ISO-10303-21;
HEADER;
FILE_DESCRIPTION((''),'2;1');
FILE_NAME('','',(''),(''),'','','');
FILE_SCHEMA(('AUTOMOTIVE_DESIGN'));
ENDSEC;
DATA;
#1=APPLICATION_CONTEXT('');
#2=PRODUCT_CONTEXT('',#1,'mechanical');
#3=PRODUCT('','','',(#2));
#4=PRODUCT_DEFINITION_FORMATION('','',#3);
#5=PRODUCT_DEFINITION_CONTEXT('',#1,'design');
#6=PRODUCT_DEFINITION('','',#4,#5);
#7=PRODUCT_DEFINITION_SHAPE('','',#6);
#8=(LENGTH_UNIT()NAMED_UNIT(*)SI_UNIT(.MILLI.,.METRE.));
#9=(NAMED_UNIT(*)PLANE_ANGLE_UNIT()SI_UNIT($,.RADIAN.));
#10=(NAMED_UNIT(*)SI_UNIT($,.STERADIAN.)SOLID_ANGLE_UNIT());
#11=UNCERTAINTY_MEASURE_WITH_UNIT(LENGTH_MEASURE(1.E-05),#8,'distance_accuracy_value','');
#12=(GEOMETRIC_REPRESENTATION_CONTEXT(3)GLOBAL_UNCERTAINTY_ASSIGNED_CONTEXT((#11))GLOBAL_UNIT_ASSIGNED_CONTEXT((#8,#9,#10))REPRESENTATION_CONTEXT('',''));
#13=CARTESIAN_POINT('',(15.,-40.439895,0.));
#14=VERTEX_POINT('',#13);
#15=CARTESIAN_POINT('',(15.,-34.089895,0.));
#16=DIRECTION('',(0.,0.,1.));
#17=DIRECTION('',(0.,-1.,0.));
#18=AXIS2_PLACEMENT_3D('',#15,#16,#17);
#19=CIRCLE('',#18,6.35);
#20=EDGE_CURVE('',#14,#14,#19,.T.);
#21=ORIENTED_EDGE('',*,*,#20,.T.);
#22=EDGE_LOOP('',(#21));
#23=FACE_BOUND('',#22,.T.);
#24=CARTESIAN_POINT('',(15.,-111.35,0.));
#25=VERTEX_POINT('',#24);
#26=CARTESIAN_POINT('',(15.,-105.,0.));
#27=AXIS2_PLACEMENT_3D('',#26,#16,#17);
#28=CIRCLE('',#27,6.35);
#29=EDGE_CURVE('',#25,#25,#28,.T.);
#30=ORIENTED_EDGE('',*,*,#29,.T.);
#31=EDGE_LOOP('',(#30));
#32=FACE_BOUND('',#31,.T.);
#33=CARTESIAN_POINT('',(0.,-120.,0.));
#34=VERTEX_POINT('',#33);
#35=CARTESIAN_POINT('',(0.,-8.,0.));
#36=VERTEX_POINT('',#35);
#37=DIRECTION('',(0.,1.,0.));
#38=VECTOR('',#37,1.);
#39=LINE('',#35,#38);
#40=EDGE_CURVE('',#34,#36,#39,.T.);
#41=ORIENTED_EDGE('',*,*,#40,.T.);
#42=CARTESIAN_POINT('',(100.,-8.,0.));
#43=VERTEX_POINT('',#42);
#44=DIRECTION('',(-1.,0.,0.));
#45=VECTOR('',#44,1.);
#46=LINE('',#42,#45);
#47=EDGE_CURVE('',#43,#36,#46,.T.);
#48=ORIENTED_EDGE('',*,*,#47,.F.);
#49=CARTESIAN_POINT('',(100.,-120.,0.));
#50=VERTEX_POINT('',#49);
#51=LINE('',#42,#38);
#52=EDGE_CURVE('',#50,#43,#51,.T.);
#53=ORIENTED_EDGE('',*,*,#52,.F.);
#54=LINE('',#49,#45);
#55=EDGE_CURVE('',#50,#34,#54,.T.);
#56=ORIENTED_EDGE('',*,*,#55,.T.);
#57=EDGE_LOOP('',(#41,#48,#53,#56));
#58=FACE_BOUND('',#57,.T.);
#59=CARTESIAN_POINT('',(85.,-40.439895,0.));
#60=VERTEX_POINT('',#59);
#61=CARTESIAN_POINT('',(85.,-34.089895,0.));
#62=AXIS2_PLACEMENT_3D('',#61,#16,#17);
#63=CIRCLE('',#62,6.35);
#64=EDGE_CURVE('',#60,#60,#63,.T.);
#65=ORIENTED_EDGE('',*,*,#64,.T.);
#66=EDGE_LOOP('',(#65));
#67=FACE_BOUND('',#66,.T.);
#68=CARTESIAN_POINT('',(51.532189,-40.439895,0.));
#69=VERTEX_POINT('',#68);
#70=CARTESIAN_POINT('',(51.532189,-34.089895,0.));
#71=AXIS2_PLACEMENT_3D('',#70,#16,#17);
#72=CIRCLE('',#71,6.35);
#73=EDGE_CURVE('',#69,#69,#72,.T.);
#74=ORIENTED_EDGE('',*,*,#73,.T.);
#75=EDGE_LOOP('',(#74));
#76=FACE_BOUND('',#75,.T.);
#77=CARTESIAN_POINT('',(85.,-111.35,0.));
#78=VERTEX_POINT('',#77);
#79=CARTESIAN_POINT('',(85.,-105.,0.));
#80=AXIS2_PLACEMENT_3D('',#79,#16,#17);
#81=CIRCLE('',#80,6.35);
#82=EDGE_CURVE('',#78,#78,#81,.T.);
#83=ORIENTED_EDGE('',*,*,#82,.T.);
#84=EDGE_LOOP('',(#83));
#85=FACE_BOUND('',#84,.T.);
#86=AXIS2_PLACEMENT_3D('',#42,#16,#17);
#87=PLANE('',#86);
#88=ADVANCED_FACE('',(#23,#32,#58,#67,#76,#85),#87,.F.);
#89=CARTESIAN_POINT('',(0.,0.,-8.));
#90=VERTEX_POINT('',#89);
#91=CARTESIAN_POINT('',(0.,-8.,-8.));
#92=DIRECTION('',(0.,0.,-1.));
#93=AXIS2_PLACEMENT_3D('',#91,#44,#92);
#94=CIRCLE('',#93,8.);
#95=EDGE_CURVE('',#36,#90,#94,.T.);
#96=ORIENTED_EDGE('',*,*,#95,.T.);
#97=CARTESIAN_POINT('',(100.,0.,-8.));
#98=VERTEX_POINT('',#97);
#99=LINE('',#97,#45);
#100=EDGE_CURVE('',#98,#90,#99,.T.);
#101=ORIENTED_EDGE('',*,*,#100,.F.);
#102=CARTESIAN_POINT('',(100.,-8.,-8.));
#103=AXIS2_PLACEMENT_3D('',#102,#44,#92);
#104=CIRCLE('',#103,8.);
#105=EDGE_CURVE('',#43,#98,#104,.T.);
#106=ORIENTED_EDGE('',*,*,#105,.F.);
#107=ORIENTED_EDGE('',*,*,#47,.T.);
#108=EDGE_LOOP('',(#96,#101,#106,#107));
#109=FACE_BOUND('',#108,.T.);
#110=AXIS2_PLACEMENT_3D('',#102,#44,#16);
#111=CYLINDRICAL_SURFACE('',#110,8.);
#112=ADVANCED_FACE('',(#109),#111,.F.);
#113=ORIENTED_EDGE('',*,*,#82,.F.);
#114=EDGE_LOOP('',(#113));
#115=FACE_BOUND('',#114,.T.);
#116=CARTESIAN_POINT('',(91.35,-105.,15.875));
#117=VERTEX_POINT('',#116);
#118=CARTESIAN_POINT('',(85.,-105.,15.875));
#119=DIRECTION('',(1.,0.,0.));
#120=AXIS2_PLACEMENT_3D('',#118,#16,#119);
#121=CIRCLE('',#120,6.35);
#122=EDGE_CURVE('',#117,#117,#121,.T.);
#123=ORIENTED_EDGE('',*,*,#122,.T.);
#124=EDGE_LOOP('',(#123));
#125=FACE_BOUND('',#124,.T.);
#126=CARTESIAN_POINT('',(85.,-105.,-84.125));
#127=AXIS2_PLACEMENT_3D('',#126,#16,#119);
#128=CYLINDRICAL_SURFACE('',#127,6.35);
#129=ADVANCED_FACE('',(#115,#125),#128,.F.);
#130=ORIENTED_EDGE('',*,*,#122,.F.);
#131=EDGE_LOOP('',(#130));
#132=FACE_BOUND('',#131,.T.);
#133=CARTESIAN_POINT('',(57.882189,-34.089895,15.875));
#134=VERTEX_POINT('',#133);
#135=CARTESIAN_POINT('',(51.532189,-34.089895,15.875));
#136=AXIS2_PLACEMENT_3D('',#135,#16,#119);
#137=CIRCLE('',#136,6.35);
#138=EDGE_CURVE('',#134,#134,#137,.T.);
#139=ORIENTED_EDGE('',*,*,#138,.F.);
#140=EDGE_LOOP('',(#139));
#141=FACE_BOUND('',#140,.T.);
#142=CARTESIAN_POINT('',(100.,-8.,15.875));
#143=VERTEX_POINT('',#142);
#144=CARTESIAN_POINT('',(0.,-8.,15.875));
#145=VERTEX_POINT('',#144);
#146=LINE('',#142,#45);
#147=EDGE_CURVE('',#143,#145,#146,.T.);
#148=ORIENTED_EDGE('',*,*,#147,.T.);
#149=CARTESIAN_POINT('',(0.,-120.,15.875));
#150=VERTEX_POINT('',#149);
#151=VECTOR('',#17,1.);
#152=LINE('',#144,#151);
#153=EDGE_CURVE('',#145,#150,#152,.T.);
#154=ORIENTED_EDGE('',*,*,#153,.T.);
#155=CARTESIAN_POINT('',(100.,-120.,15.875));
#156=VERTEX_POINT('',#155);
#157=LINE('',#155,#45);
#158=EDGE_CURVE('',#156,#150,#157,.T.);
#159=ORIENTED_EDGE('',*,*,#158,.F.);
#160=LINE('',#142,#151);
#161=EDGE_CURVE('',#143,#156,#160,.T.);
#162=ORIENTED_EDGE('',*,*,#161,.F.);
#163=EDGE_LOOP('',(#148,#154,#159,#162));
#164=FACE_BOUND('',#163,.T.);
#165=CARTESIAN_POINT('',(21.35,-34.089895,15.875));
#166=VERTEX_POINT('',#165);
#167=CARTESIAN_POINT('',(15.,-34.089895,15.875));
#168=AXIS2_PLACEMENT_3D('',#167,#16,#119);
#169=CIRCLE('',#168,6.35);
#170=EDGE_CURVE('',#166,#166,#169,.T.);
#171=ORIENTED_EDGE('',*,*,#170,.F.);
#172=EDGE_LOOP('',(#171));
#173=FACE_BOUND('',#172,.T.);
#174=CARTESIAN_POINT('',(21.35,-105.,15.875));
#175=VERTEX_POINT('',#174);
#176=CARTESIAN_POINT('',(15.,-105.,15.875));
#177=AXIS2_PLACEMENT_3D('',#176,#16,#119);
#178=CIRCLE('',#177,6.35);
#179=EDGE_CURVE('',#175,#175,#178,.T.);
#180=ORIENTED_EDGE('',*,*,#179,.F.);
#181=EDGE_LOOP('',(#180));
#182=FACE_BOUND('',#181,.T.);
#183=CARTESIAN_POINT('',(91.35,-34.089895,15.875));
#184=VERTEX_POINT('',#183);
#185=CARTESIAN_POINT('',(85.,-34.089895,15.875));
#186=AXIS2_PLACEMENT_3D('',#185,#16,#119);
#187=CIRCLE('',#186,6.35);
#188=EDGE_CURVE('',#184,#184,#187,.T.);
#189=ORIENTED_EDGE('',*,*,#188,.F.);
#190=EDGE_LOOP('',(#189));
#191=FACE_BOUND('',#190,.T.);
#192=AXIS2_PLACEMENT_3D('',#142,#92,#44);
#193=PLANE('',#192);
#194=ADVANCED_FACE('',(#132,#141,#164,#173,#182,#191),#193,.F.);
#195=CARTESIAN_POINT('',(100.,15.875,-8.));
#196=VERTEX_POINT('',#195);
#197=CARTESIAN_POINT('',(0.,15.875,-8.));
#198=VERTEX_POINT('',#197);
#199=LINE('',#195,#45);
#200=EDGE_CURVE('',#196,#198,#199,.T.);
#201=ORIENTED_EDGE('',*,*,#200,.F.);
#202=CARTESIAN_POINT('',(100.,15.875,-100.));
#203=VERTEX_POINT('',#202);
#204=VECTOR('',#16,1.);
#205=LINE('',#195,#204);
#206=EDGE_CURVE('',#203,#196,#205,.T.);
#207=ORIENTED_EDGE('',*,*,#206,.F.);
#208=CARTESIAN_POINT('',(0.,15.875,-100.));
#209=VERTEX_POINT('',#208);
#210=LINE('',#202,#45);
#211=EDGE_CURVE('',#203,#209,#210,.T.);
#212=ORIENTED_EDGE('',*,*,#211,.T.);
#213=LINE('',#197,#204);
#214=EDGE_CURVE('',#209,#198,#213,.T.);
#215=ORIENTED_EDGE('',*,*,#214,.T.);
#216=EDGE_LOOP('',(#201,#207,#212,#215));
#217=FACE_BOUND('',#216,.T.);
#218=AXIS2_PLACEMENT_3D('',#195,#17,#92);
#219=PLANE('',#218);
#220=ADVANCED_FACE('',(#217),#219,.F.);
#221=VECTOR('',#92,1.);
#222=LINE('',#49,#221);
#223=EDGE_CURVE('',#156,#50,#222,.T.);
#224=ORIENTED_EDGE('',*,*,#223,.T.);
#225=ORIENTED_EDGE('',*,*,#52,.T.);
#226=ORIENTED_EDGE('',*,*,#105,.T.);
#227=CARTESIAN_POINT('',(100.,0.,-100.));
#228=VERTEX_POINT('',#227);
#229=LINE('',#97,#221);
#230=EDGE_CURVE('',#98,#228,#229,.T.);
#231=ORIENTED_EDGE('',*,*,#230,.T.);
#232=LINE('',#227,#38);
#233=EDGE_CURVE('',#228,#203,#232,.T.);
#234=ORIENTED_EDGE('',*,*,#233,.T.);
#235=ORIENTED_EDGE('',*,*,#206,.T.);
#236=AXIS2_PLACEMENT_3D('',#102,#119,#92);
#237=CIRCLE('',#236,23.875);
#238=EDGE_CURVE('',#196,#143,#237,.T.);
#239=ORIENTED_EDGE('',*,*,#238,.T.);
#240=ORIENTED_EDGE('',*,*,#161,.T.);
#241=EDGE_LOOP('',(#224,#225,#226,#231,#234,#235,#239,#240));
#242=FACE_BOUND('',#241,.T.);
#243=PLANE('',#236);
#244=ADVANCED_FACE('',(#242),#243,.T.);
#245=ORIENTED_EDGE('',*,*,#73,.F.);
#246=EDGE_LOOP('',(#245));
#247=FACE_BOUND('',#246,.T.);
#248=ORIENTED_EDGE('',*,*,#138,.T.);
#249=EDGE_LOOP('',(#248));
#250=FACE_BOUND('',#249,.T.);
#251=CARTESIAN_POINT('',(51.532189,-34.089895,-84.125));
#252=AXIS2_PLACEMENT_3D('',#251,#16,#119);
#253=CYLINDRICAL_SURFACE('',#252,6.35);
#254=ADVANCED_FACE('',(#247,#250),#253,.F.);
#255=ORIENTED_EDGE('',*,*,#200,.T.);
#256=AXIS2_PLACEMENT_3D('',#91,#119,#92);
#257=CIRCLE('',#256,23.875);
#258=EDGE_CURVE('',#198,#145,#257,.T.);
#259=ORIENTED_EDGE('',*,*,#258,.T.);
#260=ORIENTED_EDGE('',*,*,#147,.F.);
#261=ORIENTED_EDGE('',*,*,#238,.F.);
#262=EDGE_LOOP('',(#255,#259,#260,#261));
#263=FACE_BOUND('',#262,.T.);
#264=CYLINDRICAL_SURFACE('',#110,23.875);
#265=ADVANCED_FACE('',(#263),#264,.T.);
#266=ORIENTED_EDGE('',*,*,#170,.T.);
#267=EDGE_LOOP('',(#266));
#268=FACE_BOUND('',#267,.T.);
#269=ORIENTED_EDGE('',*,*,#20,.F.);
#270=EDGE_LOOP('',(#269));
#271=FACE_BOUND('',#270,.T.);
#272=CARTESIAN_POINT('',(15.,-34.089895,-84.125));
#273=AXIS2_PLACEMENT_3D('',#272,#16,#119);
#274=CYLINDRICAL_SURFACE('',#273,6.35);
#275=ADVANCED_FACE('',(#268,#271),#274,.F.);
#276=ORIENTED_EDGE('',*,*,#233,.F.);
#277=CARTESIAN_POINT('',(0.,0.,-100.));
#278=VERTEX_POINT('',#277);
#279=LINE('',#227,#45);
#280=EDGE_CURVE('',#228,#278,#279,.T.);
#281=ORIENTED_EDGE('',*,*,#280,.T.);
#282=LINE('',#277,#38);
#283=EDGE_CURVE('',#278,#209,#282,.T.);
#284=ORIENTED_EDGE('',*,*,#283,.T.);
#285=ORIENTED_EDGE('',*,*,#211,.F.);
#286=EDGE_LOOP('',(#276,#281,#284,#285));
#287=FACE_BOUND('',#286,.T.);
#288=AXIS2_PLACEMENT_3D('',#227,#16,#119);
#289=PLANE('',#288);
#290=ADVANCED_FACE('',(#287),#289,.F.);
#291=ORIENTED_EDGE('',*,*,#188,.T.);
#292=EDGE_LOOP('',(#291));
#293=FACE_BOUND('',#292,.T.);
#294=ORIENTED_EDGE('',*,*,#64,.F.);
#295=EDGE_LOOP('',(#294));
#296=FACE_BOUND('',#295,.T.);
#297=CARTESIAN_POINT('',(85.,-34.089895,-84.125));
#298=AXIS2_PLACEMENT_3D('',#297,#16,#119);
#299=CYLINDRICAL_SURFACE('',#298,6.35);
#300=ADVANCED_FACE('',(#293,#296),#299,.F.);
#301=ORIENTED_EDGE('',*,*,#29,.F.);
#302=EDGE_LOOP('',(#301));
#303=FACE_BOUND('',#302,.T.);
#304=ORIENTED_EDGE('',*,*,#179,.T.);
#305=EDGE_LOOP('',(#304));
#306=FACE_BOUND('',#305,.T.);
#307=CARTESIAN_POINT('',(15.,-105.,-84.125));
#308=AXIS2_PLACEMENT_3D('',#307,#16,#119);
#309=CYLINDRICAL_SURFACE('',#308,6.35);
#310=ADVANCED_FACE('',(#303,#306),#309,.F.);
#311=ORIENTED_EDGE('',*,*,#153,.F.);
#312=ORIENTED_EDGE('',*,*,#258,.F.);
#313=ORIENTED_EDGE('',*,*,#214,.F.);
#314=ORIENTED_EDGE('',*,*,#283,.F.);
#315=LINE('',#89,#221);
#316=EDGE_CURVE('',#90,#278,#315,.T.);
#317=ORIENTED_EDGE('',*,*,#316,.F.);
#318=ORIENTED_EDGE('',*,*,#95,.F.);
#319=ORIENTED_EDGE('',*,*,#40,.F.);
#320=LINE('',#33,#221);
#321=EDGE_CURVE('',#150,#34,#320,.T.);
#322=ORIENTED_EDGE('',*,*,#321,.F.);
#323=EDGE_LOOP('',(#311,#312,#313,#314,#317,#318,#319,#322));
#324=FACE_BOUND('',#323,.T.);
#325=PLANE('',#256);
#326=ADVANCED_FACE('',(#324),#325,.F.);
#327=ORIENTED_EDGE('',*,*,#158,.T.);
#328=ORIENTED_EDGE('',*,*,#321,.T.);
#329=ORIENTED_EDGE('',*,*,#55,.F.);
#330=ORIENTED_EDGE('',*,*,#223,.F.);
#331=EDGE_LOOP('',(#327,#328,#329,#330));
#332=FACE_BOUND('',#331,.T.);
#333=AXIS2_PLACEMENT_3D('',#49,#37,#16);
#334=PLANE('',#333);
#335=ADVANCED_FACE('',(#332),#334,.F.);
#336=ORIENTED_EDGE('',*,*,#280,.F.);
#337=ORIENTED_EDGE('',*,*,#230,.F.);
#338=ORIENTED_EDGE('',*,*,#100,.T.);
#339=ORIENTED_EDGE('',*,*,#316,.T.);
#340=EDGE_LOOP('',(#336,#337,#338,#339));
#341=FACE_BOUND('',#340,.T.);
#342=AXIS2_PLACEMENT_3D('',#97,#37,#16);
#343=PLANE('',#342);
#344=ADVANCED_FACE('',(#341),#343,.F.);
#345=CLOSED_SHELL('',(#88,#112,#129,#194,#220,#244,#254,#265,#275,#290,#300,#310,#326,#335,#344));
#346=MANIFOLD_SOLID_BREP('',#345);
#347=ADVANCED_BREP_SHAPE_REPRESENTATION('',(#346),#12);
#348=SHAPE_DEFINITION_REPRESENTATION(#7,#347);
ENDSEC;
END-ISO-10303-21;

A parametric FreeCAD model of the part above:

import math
import FreeCAD as App
import Part
import Sketcher

V = App.Vector
Q = App.Units.Quantity

doc = App.newDocument("Part")
body = doc.addObject("PartDesign::Body", "Body")

# Sketch on YZ plane
sketch1 = body.newObject("Sketcher::SketchObject", "Sketch")
sketch1.AttachmentSupport = (doc.getObject("YZ_Plane"), [""])
sketch1.MapMode = "FlatFace"
sketch1.addGeometry([
    Part.LineSegment(V(0, -8, 0), V(0, -100, 0)),  # 0
    Part.LineSegment(V(0, -100, 0), V(16, -100, 0)),  # 1
    Part.LineSegment(V(16, -100, 0), V(16, -8, 0)),  # 2
    Part.ArcOfCircle(Part.Circle(V(-8, -8, 0), V(0, 0, 1), 24), math.radians(0), math.radians(90)),  # 3
    Part.LineSegment(V(-8, 16, 0), V(-120, 16, 0)),  # 4
    Part.LineSegment(V(-120, 16, 0), V(-120, 0, 0)),  # 5
    Part.LineSegment(V(-120, 0, 0), V(-8, 0, 0)),  # 6
    Part.ArcOfCircle(Part.Circle(V(-8, -8, 0), V(0, 0, 1), 8), math.radians(0), math.radians(90)),  # 7
], False)
sketch1.addConstraint([
    Sketcher.Constraint("Coincident", 0, 2, 1, 1),
    Sketcher.Constraint("Coincident", 1, 2, 2, 1),
    Sketcher.Constraint("Tangent", 2, 2, 3, 1),
    Sketcher.Constraint("Tangent", 3, 2, 4, 1),
    Sketcher.Constraint("Coincident", 4, 2, 5, 1),
    Sketcher.Constraint("Coincident", 5, 2, 6, 1),
    Sketcher.Constraint("Tangent", 6, 2, 7, 2),
    Sketcher.Constraint("Tangent", 7, 1, 0, 1),
    Sketcher.Constraint("Vertical", 0),
    Sketcher.Constraint("Horizontal", 1),
    Sketcher.Constraint("Vertical", 2),
    Sketcher.Constraint("Horizontal", 4),
    Sketcher.Constraint("Vertical", 5),
    Sketcher.Constraint("Horizontal", 6),
    Sketcher.Constraint("Coincident", 7, 3, 3, 3),
    Sketcher.Constraint("PointOnObject", 0, 2, -2),
    Sketcher.Constraint("PointOnObject", 5, 2, -1),
    Sketcher.Constraint("Radius", 7, Q("8 mm")),
    Sketcher.Constraint("DistanceX", 4, 2, 4, 1, Q("112 mm")),
    Sketcher.Constraint("DistanceY", 0, 2, 0, 1, Q("92 mm")),
    Sketcher.Constraint("Radius", 3, Q("23.875 mm")),
])
pad1 = body.newObject("PartDesign::Pad", "Pad")
pad1.Profile = sketch1
pad1.Length = 100

# Sketch on XY plane
sketch2 = body.newObject("Sketcher::SketchObject", "Sketch001")
sketch2.AttachmentSupport = (doc.getObject("XY_Plane"), [""])
sketch2.MapMode = "FlatFace"
sketch2.AttachmentOffset = App.Placement(V(0, 0, 15.875), App.Rotation())
sketch2.addGeometry([
    Part.Circle(V(15, -34, 0), V(0, 0, 1), 6),  # 0
    Part.Circle(V(85, -34, 0), V(0, 0, 1), 6),  # 1
    Part.Circle(V(15, -105, 0), V(0, 0, 1), 6),  # 2
    Part.Circle(V(85, -105, 0), V(0, 0, 1), 6),  # 3
    Part.Circle(V(52, -34, 0), V(0, 0, 1), 6),  # 4
], False)
sketch2.addConstraint([
    Sketcher.Constraint("Equal", 0, 1),
    Sketcher.Constraint("Equal", 1, 2),
    Sketcher.Constraint("Equal", 2, 3),
    Sketcher.Constraint("Equal", 3, 4),
    Sketcher.Constraint("Horizontal", 0, 3, 1, 3),
    Sketcher.Constraint("Horizontal", 2, 3, 3, 3),
    Sketcher.Constraint("Horizontal", 1, 3, 4, 3),
    Sketcher.Constraint("Vertical", 0, 3, 2, 3),
    Sketcher.Constraint("Vertical", 1, 3, 3, 3),
    Sketcher.Constraint("Diameter", 0, Q("12.7 mm")),
    Sketcher.Constraint("DistanceX", -1, 1, 0, 3, Q("15 mm")),
    Sketcher.Constraint("DistanceX", -1, 1, 1, 3, Q("85 mm")),
    Sketcher.Constraint("DistanceY", 2, 3, -1, 1, Q("105 mm")),
    Sketcher.Constraint("DistanceX", -1, 1, 4, 3, Q("51.532189 mm")),
    Sketcher.Constraint("DistanceY", 0, 3, -1, 1, Q("34.089895 mm")),
])
pocket1 = body.newObject("PartDesign::Pocket", "Pocket")
pocket1.Profile = sketch2
pocket1.Length = 100

doc.recompute()
